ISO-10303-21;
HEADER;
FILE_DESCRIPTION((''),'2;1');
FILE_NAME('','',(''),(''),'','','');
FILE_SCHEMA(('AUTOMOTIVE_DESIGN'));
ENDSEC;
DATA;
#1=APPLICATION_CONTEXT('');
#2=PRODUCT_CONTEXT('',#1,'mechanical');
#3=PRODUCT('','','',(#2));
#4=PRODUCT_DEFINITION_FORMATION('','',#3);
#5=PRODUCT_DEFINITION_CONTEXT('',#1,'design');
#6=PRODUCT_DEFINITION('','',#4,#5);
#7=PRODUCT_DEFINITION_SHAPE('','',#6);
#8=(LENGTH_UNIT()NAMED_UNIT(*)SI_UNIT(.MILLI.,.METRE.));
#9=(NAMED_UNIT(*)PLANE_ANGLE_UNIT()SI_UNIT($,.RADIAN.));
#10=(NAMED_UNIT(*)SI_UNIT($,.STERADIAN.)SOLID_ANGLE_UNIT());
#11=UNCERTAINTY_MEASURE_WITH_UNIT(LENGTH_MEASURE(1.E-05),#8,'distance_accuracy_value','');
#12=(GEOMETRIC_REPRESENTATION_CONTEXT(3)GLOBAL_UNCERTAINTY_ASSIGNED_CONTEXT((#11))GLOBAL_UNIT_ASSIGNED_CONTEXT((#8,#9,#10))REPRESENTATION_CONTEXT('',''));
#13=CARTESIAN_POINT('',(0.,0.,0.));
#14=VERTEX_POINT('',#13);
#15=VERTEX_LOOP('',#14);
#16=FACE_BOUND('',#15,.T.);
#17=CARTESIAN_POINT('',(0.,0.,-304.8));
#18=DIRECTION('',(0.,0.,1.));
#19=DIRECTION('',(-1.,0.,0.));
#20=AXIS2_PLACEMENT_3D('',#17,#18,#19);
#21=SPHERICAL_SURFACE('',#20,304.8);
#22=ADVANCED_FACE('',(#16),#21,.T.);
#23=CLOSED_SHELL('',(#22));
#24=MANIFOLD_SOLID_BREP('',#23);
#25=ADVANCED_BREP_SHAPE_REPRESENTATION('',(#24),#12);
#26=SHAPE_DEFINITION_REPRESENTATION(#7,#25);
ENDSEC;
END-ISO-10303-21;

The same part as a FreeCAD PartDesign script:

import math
import FreeCAD as App
import Part
import Sketcher
Q = App.Units.Quantity

doc = App.newDocument("Part")
body = doc.addObject("PartDesign::Body", "Body")

# Sketch on XZ plane
sketch1 = body.newObject("Sketcher::SketchObject", "Sketch")
sketch1.AttachmentSupport = (doc.getObject("XZ_Plane"), [""])
sketch1.MapMode = "FlatFace"
sketch1.addGeometry(Part.LineSegment(App.Vector(0, -610, 0), App.Vector(0, 0, 0)), False)
sketch1.addGeometry(Part.ArcOfCircle(Part.Circle(App.Vector(0, -305, 0), App.Vector(0, 0, 1), 305), math.radians(-90), math.radians(90)), False)
sketch1.addConstraint(Sketcher.Constraint("Coincident", 0, 1, 1, 1))
sketch1.addConstraint(Sketcher.Constraint("Coincident", 1, 2, 0, 2))
sketch1.addConstraint(Sketcher.Constraint("Vertical", 0))
sketch1.addConstraint(Sketcher.Constraint("Coincident", 1, 2, -1, 1))
sketch1.addConstraint(Sketcher.Constraint("PointOnObject", 1, 3, -2))
sketch1.addConstraint(Sketcher.Constraint("Radius", 1, Q("12 in")))
revolution = body.newObject("PartDesign::Revolution", "Revolution")
revolution.Profile = sketch1
revolution.ReferenceAxis = (sketch1, ["V_Axis"])
revolution.Angle = 360

doc.recompute()
